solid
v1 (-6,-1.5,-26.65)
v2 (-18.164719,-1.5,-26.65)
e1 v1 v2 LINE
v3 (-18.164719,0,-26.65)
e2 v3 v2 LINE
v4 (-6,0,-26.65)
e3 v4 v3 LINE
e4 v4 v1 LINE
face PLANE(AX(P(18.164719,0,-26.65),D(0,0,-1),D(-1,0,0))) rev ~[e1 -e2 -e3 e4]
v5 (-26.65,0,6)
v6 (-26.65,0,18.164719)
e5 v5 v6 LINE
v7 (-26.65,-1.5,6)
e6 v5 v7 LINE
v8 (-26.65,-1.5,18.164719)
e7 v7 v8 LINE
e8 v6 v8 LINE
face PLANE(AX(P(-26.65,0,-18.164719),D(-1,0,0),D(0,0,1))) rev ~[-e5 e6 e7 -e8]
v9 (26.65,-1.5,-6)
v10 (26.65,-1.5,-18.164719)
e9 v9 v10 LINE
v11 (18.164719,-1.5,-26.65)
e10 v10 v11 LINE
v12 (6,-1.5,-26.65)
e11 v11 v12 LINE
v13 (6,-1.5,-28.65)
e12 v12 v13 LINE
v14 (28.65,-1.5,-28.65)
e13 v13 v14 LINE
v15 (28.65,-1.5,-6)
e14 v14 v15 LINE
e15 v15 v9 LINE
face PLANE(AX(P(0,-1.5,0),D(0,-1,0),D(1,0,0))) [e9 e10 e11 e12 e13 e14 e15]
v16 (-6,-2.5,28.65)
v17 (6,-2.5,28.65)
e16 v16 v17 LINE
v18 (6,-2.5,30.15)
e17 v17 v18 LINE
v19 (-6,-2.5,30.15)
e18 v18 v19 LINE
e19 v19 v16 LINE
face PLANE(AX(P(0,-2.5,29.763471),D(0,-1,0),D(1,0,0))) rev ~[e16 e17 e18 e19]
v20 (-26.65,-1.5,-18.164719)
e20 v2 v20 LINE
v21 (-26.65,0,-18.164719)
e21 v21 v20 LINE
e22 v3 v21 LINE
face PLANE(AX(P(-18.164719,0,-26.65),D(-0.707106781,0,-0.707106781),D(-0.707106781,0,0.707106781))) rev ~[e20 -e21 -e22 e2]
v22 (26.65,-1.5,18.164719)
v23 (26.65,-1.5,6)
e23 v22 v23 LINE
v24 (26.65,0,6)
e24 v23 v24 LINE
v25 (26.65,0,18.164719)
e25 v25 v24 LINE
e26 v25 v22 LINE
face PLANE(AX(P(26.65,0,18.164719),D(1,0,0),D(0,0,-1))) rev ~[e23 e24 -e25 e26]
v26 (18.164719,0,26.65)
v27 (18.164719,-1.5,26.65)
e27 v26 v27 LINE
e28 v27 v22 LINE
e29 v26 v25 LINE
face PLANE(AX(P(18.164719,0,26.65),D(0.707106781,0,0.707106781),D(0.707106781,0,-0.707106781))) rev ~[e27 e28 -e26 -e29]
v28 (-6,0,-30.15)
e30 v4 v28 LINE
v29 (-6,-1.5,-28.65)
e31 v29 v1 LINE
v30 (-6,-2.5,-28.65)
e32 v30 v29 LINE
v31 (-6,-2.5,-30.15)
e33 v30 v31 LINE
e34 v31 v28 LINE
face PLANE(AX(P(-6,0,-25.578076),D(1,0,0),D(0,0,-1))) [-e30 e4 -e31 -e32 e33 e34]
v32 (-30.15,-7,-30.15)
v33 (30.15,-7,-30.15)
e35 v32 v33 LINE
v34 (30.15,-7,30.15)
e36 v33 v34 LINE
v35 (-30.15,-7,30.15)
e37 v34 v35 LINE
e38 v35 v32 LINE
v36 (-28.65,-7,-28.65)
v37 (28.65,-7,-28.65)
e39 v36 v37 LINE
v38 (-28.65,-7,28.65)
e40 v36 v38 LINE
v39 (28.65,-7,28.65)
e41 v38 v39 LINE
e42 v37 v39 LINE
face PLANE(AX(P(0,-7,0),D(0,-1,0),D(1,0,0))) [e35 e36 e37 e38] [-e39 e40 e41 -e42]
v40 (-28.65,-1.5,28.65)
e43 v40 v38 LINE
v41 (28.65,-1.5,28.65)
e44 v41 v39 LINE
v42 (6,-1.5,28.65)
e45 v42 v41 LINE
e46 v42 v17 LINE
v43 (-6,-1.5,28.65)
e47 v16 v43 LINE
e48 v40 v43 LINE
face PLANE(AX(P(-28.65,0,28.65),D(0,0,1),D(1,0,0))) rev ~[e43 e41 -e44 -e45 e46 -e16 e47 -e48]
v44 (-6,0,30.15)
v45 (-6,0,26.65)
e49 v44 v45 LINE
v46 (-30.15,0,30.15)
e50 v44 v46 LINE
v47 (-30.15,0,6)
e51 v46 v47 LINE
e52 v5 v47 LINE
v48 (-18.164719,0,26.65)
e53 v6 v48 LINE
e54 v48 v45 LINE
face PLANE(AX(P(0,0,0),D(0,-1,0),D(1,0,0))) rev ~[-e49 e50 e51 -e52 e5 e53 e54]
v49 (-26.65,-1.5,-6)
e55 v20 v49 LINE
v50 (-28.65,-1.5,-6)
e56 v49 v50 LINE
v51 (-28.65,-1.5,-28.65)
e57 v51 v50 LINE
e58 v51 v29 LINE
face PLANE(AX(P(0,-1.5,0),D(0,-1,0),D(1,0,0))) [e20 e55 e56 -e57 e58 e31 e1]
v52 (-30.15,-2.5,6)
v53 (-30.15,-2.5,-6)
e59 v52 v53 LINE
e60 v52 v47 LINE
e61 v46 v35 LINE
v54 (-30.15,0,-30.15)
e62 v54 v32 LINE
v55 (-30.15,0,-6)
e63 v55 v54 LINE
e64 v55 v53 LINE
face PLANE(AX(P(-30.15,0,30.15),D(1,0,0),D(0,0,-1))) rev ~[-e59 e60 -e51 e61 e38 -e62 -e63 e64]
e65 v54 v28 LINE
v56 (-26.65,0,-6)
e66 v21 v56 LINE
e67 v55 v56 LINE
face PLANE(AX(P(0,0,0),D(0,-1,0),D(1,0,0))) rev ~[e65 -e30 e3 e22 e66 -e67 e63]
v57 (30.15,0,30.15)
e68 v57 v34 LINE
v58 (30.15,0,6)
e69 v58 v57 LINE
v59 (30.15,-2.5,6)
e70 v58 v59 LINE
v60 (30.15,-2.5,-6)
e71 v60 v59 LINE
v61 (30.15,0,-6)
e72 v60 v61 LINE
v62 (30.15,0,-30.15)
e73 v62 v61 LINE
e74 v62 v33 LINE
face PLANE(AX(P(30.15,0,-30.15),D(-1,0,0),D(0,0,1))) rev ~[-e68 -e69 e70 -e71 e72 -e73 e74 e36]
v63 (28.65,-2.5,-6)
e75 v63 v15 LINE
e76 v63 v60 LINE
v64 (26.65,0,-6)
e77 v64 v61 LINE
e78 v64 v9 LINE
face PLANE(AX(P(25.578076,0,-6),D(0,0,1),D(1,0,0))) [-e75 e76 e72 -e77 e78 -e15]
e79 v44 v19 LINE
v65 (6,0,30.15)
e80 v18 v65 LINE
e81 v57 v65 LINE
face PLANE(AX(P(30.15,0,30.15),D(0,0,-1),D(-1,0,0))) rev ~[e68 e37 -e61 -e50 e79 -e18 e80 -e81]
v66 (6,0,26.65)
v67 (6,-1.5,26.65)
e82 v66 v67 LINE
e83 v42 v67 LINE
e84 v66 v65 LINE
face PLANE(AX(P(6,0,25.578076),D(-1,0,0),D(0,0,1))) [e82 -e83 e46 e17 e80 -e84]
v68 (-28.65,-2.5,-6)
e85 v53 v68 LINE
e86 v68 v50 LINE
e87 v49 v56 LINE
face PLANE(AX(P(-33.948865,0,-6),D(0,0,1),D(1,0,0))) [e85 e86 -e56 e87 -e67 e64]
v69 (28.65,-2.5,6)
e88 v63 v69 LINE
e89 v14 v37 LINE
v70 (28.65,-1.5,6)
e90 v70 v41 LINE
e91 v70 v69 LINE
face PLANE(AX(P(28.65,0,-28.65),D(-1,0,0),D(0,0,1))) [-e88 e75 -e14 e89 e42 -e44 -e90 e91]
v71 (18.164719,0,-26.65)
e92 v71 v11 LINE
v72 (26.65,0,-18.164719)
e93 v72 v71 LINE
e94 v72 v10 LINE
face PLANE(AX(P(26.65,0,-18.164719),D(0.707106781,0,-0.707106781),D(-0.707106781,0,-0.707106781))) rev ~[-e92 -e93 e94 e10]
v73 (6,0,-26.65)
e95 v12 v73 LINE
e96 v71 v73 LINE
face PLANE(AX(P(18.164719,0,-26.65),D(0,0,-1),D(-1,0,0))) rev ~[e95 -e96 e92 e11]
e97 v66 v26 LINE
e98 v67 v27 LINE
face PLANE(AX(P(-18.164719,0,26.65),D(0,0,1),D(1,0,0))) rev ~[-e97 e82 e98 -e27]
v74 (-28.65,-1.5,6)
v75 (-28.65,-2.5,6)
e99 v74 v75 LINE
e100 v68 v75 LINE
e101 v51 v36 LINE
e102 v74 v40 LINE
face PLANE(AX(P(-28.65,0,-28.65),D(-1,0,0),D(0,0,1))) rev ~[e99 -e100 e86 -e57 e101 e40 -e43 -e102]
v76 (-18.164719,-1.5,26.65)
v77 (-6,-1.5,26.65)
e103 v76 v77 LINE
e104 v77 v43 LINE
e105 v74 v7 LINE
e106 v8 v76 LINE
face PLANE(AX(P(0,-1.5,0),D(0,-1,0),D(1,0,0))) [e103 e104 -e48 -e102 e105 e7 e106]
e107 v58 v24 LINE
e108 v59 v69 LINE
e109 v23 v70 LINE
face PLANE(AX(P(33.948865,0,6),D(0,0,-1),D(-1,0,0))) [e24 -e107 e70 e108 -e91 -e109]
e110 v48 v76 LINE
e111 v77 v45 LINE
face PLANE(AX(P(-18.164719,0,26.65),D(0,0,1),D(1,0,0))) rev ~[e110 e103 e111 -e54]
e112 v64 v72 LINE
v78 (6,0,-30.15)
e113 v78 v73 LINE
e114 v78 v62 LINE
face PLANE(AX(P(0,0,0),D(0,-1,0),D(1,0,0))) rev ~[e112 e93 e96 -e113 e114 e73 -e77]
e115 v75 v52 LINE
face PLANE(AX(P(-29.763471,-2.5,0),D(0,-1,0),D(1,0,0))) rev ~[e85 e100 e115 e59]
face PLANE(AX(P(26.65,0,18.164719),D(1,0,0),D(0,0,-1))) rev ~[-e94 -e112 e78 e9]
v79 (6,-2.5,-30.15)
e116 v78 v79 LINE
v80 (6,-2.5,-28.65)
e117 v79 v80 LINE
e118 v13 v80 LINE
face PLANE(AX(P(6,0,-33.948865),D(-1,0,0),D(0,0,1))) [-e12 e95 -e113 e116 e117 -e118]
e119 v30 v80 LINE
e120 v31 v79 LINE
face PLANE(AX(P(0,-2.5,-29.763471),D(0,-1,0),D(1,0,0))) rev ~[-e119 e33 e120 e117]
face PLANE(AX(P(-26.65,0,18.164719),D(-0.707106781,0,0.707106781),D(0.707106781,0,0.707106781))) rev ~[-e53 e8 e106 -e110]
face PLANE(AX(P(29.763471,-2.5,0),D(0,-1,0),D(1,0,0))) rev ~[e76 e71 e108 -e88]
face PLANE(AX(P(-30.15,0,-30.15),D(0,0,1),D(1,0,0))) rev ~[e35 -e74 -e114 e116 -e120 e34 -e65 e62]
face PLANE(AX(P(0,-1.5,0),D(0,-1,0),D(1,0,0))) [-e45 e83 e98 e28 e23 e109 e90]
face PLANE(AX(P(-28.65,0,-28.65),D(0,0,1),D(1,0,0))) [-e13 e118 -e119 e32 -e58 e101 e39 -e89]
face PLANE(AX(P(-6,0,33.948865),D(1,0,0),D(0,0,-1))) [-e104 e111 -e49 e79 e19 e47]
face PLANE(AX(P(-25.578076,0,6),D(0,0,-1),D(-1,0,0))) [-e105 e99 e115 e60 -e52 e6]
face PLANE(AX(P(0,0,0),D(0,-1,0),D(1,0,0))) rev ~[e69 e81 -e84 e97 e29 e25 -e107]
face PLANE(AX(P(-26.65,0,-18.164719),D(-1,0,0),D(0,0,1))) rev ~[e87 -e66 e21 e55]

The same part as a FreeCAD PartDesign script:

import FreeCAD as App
import Part
import Sketcher

doc = App.newDocument("Part")
body = doc.addObject("PartDesign::Body", "Body")

# Sketch on XZ plane
sketch1 = doc.addObject("Sketcher::SketchObject", "Sketch")
body.addObject(sketch1)
sketch1.AttachmentSupport = (doc.XZ_Plane, [""])
sketch1.MapMode = "FlatFace"
sketch1.addGeometry([
    Part.LineSegment(App.Vector(-29, 29, 0), App.Vector(-29, -29, 0)),  # 0
    Part.LineSegment(App.Vector(-29, -29, 0), App.Vector(29, -29, 0)),  # 1
    Part.LineSegment(App.Vector(29, -29, 0), App.Vector(29, 29, 0)),  # 2
    Part.LineSegment(App.Vector(29, 29, 0), App.Vector(-29, 29, 0)),  # 3
    Part.LineSegment(App.Vector(-27, 18, 0), App.Vector(-18, 27, 0)),  # 4
    Part.LineSegment(App.Vector(-18, 27, 0), App.Vector(18, 27, 0)),  # 5
    Part.LineSegment(App.Vector(18, 27, 0), App.Vector(27, 18, 0)),  # 6
    Part.LineSegment(App.Vector(27, 18, 0), App.Vector(27, -18, 0)),  # 7
    Part.LineSegment(App.Vector(27, -18, 0), App.Vector(18, -27, 0)),  # 8
    Part.LineSegment(App.Vector(18, -27, 0), App.Vector(-18, -27, 0)),  # 9
    Part.LineSegment(App.Vector(-18, -27, 0), App.Vector(-27, -18, 0)),  # 10
    Part.LineSegment(App.Vector(-27, -18, 0), App.Vector(-27, 18, 0)),  # 11
], False)
sketch1.addConstraint([
    Sketcher.Constraint("Coincident", 0, 2, 1, 1),
    Sketcher.Constraint("Coincident", 1, 2, 2, 1),
    Sketcher.Constraint("Coincident", 2, 2, 3, 1),
    Sketcher.Constraint("Coincident", 3, 2, 0, 1),
    Sketcher.Constraint("Coincident", 4, 2, 5, 1),
    Sketcher.Constraint("Coincident", 5, 2, 6, 1),
    Sketcher.Constraint("Coincident", 6, 2, 7, 1),
    Sketcher.Constraint("Coincident", 7, 2, 8, 1),
    Sketcher.Constraint("Coincident", 8, 2, 9, 1),
    Sketcher.Constraint("Coincident", 9, 2, 10, 1),
    Sketcher.Constraint("Coincident", 10, 2, 11, 1),
    Sketcher.Constraint("Coincident", 11, 2, 4, 1),
    Sketcher.Constraint("Vertical", 0),
    Sketcher.Constraint("Horizontal", 1),
    Sketcher.Constraint("Vertical", 2),
    Sketcher.Constraint("Horizontal", 3),
    Sketcher.Constraint("Horizontal", 5),
    Sketcher.Constraint("Vertical", 7),
    Sketcher.Constraint("Horizontal", 9),
    Sketcher.Constraint("Vertical", 11),
    Sketcher.Constraint("Symmetric", 0, 2, 2, 2, -1, 1),
    Sketcher.Constraint("Symmetric", 4, 2, 8, 2, -1, 1),
    Sketcher.Constraint("Symmetric", 6, 2, 10, 2, -1, 1),
    Sketcher.Constraint("Perpendicular", 4, 6),
    Sketcher.Constraint("Perpendicular", 6, 8),
    Sketcher.Constraint("Perpendicular", 8, 10),
    Sketcher.Constraint("Horizontal", 7, 2, 10, 2),
    Sketcher.Constraint("Vertical", 5, 2, 8, 2),
    Sketcher.Constraint("Equal", 3, 0),
    Sketcher.Constraint("Equal", 9, 7),
    Sketcher.Constraint("Distance", 4, 11.999999),
    Sketcher.Constraint("DistanceX", 1, 1, 1, 2, 57.3),
    Sketcher.Constraint("DistanceY", 4, 2, 3, 2, 2.0),
])
pad1 = doc.addObject("PartDesign::Pad", "Pad")
body.addObject(pad1)
pad1.Profile = sketch1
pad1.Length = 1.5

# Sketch on XZ plane
sketch2 = doc.addObject("Sketcher::SketchObject", "Sketch001")
body.addObject(sketch2)
sketch2.AttachmentSupport = (doc.XZ_Plane, [""])
sketch2.MapMode = "FlatFace"
sketch2.addGeometry([
    Part.LineSegment(App.Vector(-30, 30, 0), App.Vector(-30, -30, 0)),  # 0
    Part.LineSegment(App.Vector(-30, -30, 0), App.Vector(30, -30, 0)),  # 1
    Part.LineSegment(App.Vector(30, -30, 0), App.Vector(30, 30, 0)),  # 2
    Part.LineSegment(App.Vector(30, 30, 0), App.Vector(-30, 30, 0)),  # 3
    Part.LineSegment(App.Vector(29, -29, 0), App.Vector(-29, -29, 0)),  # 4
    Part.LineSegment(App.Vector(-29, -29, 0), App.Vector(-29, 29, 0)),  # 5
    Part.LineSegment(App.Vector(-29, 29, 0), App.Vector(29, 29, 0)),  # 6
    Part.LineSegment(App.Vector(29, 29, 0), App.Vector(29, -29, 0)),  # 7
], False)
sketch2.addConstraint([
    Sketcher.Constraint("Coincident", 0, 2, 1, 1),
    Sketcher.Constraint("Coincident", 1, 2, 2, 1),
    Sketcher.Constraint("Coincident", 2, 2, 3, 1),
    Sketcher.Constraint("Coincident", 3, 2, 0, 1),
    Sketcher.Constraint("Coincident", 4, 2, 5, 1),
    Sketcher.Constraint("Coincident", 5, 2, 6, 1),
    Sketcher.Constraint("Coincident", 6, 2, 7, 1),
    Sketcher.Constraint("Coincident", 7, 2, 4, 1),
    Sketcher.Constraint("Vertical", 0),
    Sketcher.Constraint("Horizontal", 1),
    Sketcher.Constraint("Vertical", 2),
    Sketcher.Constraint("Horizontal", 3),
    Sketcher.Constraint("Horizontal", 4),
    Sketcher.Constraint("Vertical", 5),
    Sketcher.Constraint("Horizontal", 6),
    Sketcher.Constraint("Vertical", 7),
    Sketcher.Constraint("Symmetric", 0, 2, 2, 2, -1, 1),
    Sketcher.Constraint("Symmetric", 4, 2, 6, 2, -1, 1),
    Sketcher.Constraint("Equal", 3, 0),
    Sketcher.Constraint("Equal", 6, 5),
    Sketcher.Constraint("DistanceX", 1, 1, 1, 2, 60.3),
    Sketcher.Constraint("DistanceX", 4, 2, 4, 1, 57.3),
])
pad2 = doc.addObject("PartDesign::Pad", "Pad001")
body.addObject(pad2)
pad2.Profile = sketch2
pad2.Length = 7

# Sketch on XZ plane
sketch3 = doc.addObject("Sketcher::SketchObject", "Sketch002")
body.addObject(sketch3)
sketch3.AttachmentSupport = (doc.XZ_Plane, [""])
sketch3.MapMode = "FlatFace"
sketch3.addGeometry([
    Part.LineSegment(App.Vector(26, 6, 0), App.Vector(26, -6, 0)),  # 0
    Part.LineSegment(App.Vector(26, -6, 0), App.Vector(34, -6, 0)),  # 1
    Part.LineSegment(App.Vector(34, -6, 0), App.Vector(34, 6, 0)),  # 2
    Part.LineSegment(App.Vector(34, 6, 0), App.Vector(26, 6, 0)),  # 3
    Part.LineSegment(App.Vector(-6, 34, 0), App.Vector(-6, 26, 0)),  # 4
    Part.LineSegment(App.Vector(-6, 26, 0), App.Vector(6, 26, 0)),  # 5
    Part.LineSegment(App.Vector(6, 26, 0), App.Vector(6, 34, 0)),  # 6
    Part.LineSegment(App.Vector(6, 34, 0), App.Vector(-6, 34, 0)),  # 7
    Part.LineSegment(App.Vector(-34, -6, 0), App.Vector(-26, -6, 0)),  # 8
    Part.LineSegment(App.Vector(-26, -6, 0), App.Vector(-26, 6, 0)),  # 9
    Part.LineSegment(App.Vector(-26, 6, 0), App.Vector(-34, 6, 0)),  # 10
    Part.LineSegment(App.Vector(-34, 6, 0), App.Vector(-34, -6, 0)),  # 11
    Part.LineSegment(App.Vector(6, -34, 0), App.Vector(6, -26, 0)),  # 12
    Part.LineSegment(App.Vector(6, -26, 0), App.Vector(-6, -26, 0)),  # 13
    Part.LineSegment(App.Vector(-6, -26, 0), App.Vector(-6, -34, 0)),  # 14
    Part.LineSegment(App.Vector(-6, -34, 0), App.Vector(6, -34, 0)),  # 15
], False)
sketch3.addConstraint([
    Sketcher.Constraint("Coincident", 0, 2, 1, 1),
    Sketcher.Constraint("Coincident", 1, 2, 2, 1),
    Sketcher.Constraint("Coincident", 2, 2, 3, 1),
    Sketcher.Constraint("Coincident", 3, 2, 0, 1),
    Sketcher.Constraint("Coincident", 4, 2, 5, 1),
    Sketcher.Constraint("Coincident", 5, 2, 6, 1),
    Sketcher.Constraint("Coincident", 6, 2, 7, 1),
    Sketcher.Constraint("Coincident", 7, 2, 4, 1),
    Sketcher.Constraint("Coincident", 8, 2, 9, 1),
    Sketcher.Constraint("Coincident", 9, 2, 10, 1),
    Sketcher.Constraint("Coincident", 10, 2, 11, 1),
    Sketcher.Constraint("Coincident", 11, 2, 8, 1),
    Sketcher.Constraint("Coincident", 12, 2, 13, 1),
    Sketcher.Constraint("Coincident", 13, 2, 14, 1),
    Sketcher.Constraint("Coincident", 14, 2, 15, 1),
    Sketcher.Constraint("Coincident", 15, 2, 12, 1),
    Sketcher.Constraint("Vertical", 0),
    Sketcher.Constraint("Horizontal", 1),
    Sketcher.Constraint("Vertical", 2),
    Sketcher.Constraint("Horizontal", 3),
    Sketcher.Constraint("Vertical", 4),
    Sketcher.Constraint("Horizontal", 5),
    Sketcher.Constraint("Vertical", 6),
    Sketcher.Constraint("Horizontal", 7),
    Sketcher.Constraint("Horizontal", 8),
    Sketcher.Constraint("Vertical", 9),
    Sketcher.Constraint("Horizontal", 10),
    Sketcher.Constraint("Vertical", 11),
    Sketcher.Constraint("Vertical", 12),
    Sketcher.Constraint("Horizontal", 13),
    Sketcher.Constraint("Vertical", 14),
    Sketcher.Constraint("Horizontal", 15),
    Sketcher.Constraint("Symmetric", 3, 2, 8, 2, -1, 1),
    Sketcher.Constraint("Symmetric", 1, 2, 10, 2, -1, 1),
    Sketcher.Constraint("Symmetric", 4, 2, 12, 2, -1, 1),
    Sketcher.Constraint("Symmetric", 6, 2, 14, 2, -1, 1),
    Sketcher.Constraint("Horizontal", 1, 2, 8, 2),
    Sketcher.Constraint("Vertical", 6, 2, 12, 2),
    Sketcher.Constraint("Equal", 15, 0),
    Sketcher.Constraint("Equal", 10, 4),
    Sketcher.Constraint("DistanceX", 5, 1, 5, 2, 12.0),
    Sketcher.Constraint("DistanceX", 1, 1, 1, 2, 8.370789),
    Sketcher.Constraint("DistanceX", -1, 1, 0, 2, 25.578076),
    Sketcher.Constraint("DistanceY", -1, 1, 4, 2, 25.578076),
])
pocket1 = doc.addObject("PartDesign::Pocket", "Pocket")
body.addObject(pocket1)
pocket1.Profile = sketch3
pocket1.Length = 2.5
pocket1.Reversed = True

doc.recompute()
